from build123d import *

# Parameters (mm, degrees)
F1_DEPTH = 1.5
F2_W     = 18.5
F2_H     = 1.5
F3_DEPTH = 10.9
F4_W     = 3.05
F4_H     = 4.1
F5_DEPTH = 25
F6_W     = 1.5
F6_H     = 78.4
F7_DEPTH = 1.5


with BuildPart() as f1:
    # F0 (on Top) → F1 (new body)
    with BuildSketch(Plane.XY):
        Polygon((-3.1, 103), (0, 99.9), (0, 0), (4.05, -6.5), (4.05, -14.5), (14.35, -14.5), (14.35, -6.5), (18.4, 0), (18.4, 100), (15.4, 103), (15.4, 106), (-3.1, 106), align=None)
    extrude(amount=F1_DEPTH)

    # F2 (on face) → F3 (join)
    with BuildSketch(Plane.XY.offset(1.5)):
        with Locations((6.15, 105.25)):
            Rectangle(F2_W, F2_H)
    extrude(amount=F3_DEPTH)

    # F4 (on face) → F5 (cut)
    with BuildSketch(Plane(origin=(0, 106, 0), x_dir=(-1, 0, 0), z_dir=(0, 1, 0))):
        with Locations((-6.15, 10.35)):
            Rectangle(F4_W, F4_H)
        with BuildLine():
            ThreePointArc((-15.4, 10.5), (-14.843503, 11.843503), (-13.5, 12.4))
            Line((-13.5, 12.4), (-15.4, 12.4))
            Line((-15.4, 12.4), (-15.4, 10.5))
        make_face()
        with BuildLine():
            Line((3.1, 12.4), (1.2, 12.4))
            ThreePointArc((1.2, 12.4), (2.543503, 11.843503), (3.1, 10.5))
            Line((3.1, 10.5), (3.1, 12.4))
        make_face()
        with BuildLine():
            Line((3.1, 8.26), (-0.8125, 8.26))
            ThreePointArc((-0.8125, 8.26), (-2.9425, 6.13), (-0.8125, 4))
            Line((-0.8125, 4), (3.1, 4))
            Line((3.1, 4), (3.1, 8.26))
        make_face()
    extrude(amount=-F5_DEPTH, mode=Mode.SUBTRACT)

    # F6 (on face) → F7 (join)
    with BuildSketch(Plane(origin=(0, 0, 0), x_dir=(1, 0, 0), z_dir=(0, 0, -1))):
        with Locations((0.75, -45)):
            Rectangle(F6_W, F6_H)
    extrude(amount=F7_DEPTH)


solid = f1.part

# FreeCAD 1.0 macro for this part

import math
import FreeCAD as App
import Part
import Sketcher

V = App.Vector
Q = App.Units.Quantity


def add_polygon(sketch, points):
    """Adds a closed chain of lines whose ends are joined by coincident constraints."""
    first, n = sketch.GeometryCount, len(points)
    for a, b in zip(points, points[1:] + points[:1]):
        sketch.addGeometry(Part.LineSegment(App.Vector(*a, 0), App.Vector(*b, 0)), False)
    for i in range(n):
        sketch.addConstraint(Sketcher.Constraint("Coincident", first + i, 2, first + (i + 1) % n, 1))

doc = App.newDocument("Part")
body = doc.addObject("PartDesign::Body", "Body")

# Sketch on XY plane
sketch1 = body.newObject("Sketcher::SketchObject", "Sketch")
sketch1.AttachmentSupport = (doc.getObject("XY_Plane"), [""])
sketch1.MapMode = "FlatFace"
add_polygon(sketch1, [(-3.1, 103), (0, 99.9), (0, 0), (4.05, -6.5), (4.05, -14.5), (14.35, -14.5), (14.35, -6.5), (18.4, 0), (18.4, 100), (15.4, 103), (15.4, 106), (-3.1, 106)])  # lines 0-11
sketch1.addConstraint(Sketcher.Constraint("Vertical", 1))
sketch1.addConstraint(Sketcher.Constraint("Vertical", 3))
sketch1.addConstraint(Sketcher.Constraint("Horizontal", 4))
sketch1.addConstraint(Sketcher.Constraint("Vertical", 5))
sketch1.addConstraint(Sketcher.Constraint("Vertical", 7))
sketch1.addConstraint(Sketcher.Constraint("Vertical", 9))
sketch1.addConstraint(Sketcher.Constraint("Horizontal", 10))
sketch1.addConstraint(Sketcher.Constraint("Vertical", 11))
sketch1.addConstraint(Sketcher.Constraint("Coincident", 1, 2, -1, 1))
sketch1.addConstraint(Sketcher.Constraint("PointOnObject", 6, 2, -1))
sketch1.addConstraint(Sketcher.Constraint("Parallel", 0, 8))
sketch1.addConstraint(Sketcher.Constraint("Horizontal", 2, 2, 5, 2))
sketch1.addConstraint(Sketcher.Constraint("Horizontal", 8, 2, 11, 2))
sketch1.addConstraint(Sketcher.Constraint("Equal", 2, 6))
sketch1.addConstraint(Sketcher.Constraint("DistanceY", 3, 2, 3, 1, Q("8 mm")))
sketch1.addConstraint(Sketcher.Constraint("DistanceY", 7, 1, 7, 2, Q("100 mm")))
sketch1.addConstraint(Sketcher.Constraint("DistanceY", 9, 1, 9, 2, Q("3 mm")))
sketch1.addConstraint(Sketcher.Constraint("Angle", 0, Q("-45 deg")))
sketch1.addConstraint(Sketcher.Constraint("DistanceX", 4, 1, 4, 2, Q("10.3 mm")))
sketch1.addConstraint(Sketcher.Constraint("DistanceX", 10, 2, 10, 1, Q("18.5 mm")))
sketch1.addConstraint(Sketcher.Constraint("DistanceY", 1, 2, 1, 1, Q("99.9 mm")))
sketch1.addConstraint(Sketcher.Constraint("DistanceY", -1, 1, 8, 2, Q("103 mm")))
sketch1.addConstraint(Sketcher.Constraint("DistanceY", 2, 2, -1, 1, Q("6.5 mm")))
pad1 = body.newObject("PartDesign::Pad", "Pad")
pad1.Profile = sketch1
pad1.Length = 1.5

# Sketch on XY plane
sketch2 = body.newObject("Sketcher::SketchObject", "Sketch001")
sketch2.AttachmentSupport = (doc.getObject("XY_Plane"), [""])
sketch2.MapMode = "FlatFace"
sketch2.AttachmentOffset = App.Placement(V(0, 0, 1.5), App.Rotation())
add_polygon(sketch2, [(-3.1, 106), (-3.1, 104.5), (15.4, 104.5), (15.4, 106)])  # lines 0-3
sketch2.addConstraint(Sketcher.Constraint("Vertical", 0))
sketch2.addConstraint(Sketcher.Constraint("Horizontal", 1))
sketch2.addConstraint(Sketcher.Constraint("Vertical", 2))
sketch2.addConstraint(Sketcher.Constraint("Horizontal", 3))
sketch2.addConstraint(Sketcher.Constraint("DistanceX", 1, 1, 1, 2, Q("18.5 mm")))
sketch2.addConstraint(Sketcher.Constraint("DistanceY", 0, 2, 0, 1, Q("1.5 mm")))
sketch2.addConstraint(Sketcher.Constraint("DistanceY", -1, 1, 2, 2, Q("106 mm")))
sketch2.addConstraint(Sketcher.Constraint("DistanceX", 0, 2, -1, 1, Q("3.1 mm")))
pad2 = body.newObject("PartDesign::Pad", "Pad001")
pad2.Profile = sketch2
pad2.Length = 10.9

# Sketch on XZ plane
sketch3 = body.newObject("Sketcher::SketchObject", "Sketch002")
sketch3.AttachmentSupport = (doc.getObject("XZ_Plane"), [""])
sketch3.MapMode = "FlatFace"
sketch3.AttachmentOffset = App.Placement(V(0, 0, -106), App.Rotation())
add_polygon(sketch3, [(7.675, 12.4), (7.675, 8.3), (4.625, 8.3), (4.625, 12.4)])  # lines 0-3
sketch3.addGeometry(Part.ArcOfCircle(Part.Circle(V(13.5, 10.5, 0), V(0, 0, 1), 1.9), math.radians(-0.000012), math.radians(90.000012)), False)  # 4
sketch3.addGeometry(Part.LineSegment(V(13.5, 12.4, 0), V(15.4, 12.4, 0)), False)  # 5
sketch3.addGeometry(Part.LineSegment(V(15.4, 12.4, 0), V(15.4, 10.5, 0)), False)  # 6
sketch3.addGeometry(Part.LineSegment(V(-3.1, 12.4, 0), V(-1.2, 12.4, 0)), False)  # 7
sketch3.addGeometry(Part.ArcOfCircle(Part.Circle(V(-1.2, 10.5, 0), V(0, 0, 1), 1.9), math.radians(89.999988), math.radians(180.000012)), False)  # 8
sketch3.addGeometry(Part.LineSegment(V(-3.1, 10.5, 0), V(-3.1, 12.4, 0)), False)  # 9
sketch3.addGeometry(Part.LineSegment(V(-3.1, 8.26, 0), V(0.8125, 8.26, 0)), False)  # 10
sketch3.addGeometry(Part.ArcOfCircle(Part.Circle(V(0.8125, 6.13, 0), V(0, 0, 1), 2.13), math.radians(-90), math.radians(90)), False)  # 11
sketch3.addGeometry(Part.LineSegment(V(0.8125, 4, 0), V(-3.1, 4, 0)), False)  # 12
sketch3.addGeometry(Part.LineSegment(V(-3.1, 4, 0), V(-3.1, 8.26, 0)), False)  # 13
sketch3.addConstraint(Sketcher.Constraint("Tangent", 4, 2, 5, 1))
sketch3.addConstraint(Sketcher.Constraint("Coincident", 5, 2, 6, 1))
sketch3.addConstraint(Sketcher.Constraint("Tangent", 6, 2, 4, 1))
sketch3.addConstraint(Sketcher.Constraint("Tangent", 7, 2, 8, 1))
sketch3.addConstraint(Sketcher.Constraint("Tangent", 8, 2, 9, 1))
sketch3.addConstraint(Sketcher.Constraint("Coincident", 9, 2, 7, 1))
sketch3.addConstraint(Sketcher.Constraint("Tangent", 10, 2, 11, 2))
sketch3.addConstraint(Sketcher.Constraint("Tangent", 11, 1, 12, 1))
sketch3.addConstraint(Sketcher.Constraint("Coincident", 12, 2, 13, 1))
sketch3.addConstraint(Sketcher.Constraint("Coincident", 13, 2, 10, 1))
sketch3.addConstraint(Sketcher.Constraint("Vertical", 0))
sketch3.addConstraint(Sketcher.Constraint("Horizontal", 1))
sketch3.addConstraint(Sketcher.Constraint("Vertical", 2))
sketch3.addConstraint(Sketcher.Constraint("Horizontal", 3))
sketch3.addConstraint(Sketcher.Constraint("Horizontal", 5))
sketch3.addConstraint(Sketcher.Constraint("Vertical", 6))
sketch3.addConstraint(Sketcher.Constraint("Horizontal", 7))
sketch3.addConstraint(Sketcher.Constraint("Vertical", 9))
sketch3.addConstraint(Sketcher.Constraint("Horizontal", 10))
sketch3.addConstraint(Sketcher.Constraint("Horizontal", 12))
sketch3.addConstraint(Sketcher.Constraint("Vertical", 13))
sketch3.addConstraint(Sketcher.Constraint("Equal", 4, 8))
sketch3.addConstraint(Sketcher.Constraint("Horizontal", 4, 3, 8, 3))
sketch3.addConstraint(Sketcher.Constraint("Horizontal", 3, 2, 4, 2))
sketch3.addConstraint(Sketcher.Constraint("Vertical", 9, 2, 12, 2))
sketch3.addConstraint(Sketcher.Constraint("Radius", 4, Q("1.9 mm")))
sketch3.addConstraint(Sketcher.Constraint("Radius", 11, Q("2.13 mm")))
sketch3.addConstraint(Sketcher.Constraint("DistanceY", 0, 2, 0, 1, Q("4.1 mm")))
sketch3.addConstraint(Sketcher.Constraint("DistanceY", -1, 1, 11, 1, Q("4 mm")))
sketch3.addConstraint(Sketcher.Constraint("DistanceX", 1, 2, 1, 1, Q("3.05 mm")))
sketch3.addConstraint(Sketcher.Constraint("DistanceX", -1, 1, 4, 3, Q("13.5 mm")))
sketch3.addConstraint(Sketcher.Constraint("DistanceY", -1, 1, 4, 3, Q("10.5 mm")))
sketch3.addConstraint(Sketcher.Constraint("DistanceX", 8, 3, -1, 1, Q("1.2 mm")))
sketch3.addConstraint(Sketcher.Constraint("DistanceX", 10, 1, 10, 2, Q("3.9125 mm")))
sketch3.addConstraint(Sketcher.Constraint("DistanceX", -1, 1, 0, 2, Q("7.675 mm")))
pocket1 = body.newObject("PartDesign::Pocket", "Pocket")
pocket1.Profile = sketch3
pocket1.Length = 25
pocket1.Reversed = True

# Sketch on XY plane
sketch4 = body.newObject("Sketcher::SketchObject", "Sketch003")
sketch4.AttachmentSupport = (doc.getObject("XY_Plane"), [""])
sketch4.MapMode = "FlatFace"
add_polygon(sketch4, [(0, 5.8), (0, 84.2), (1.5, 84.2), (1.5, 5.8)])  # lines 0-3
sketch4.addConstraint(Sketcher.Constraint("Vertical", 0))
sketch4.addConstraint(Sketcher.Constraint("Horizontal", 1))
sketch4.addConstraint(Sketcher.Constraint("Vertical", 2))
sketch4.addConstraint(Sketcher.Constraint("Horizontal", 3))
sketch4.addConstraint(Sketcher.Constraint("PointOnObject", 0, 2, -2))
sketch4.addConstraint(Sketcher.Constraint("DistanceX", 1, 1, 1, 2, Q("1.5 mm")))
sketch4.addConstraint(Sketcher.Constraint("DistanceY", 0, 1, 0, 2, Q("78.4 mm")))
sketch4.addConstraint(Sketcher.Constraint("DistanceY", -1, 1, 0, 2, Q("84.2 mm")))
pad3 = body.newObject("PartDesign::Pad", "Pad002")
pad3.Profile = sketch4
pad3.Length = 1.5
pad3.Reversed = True

doc.recompute()
